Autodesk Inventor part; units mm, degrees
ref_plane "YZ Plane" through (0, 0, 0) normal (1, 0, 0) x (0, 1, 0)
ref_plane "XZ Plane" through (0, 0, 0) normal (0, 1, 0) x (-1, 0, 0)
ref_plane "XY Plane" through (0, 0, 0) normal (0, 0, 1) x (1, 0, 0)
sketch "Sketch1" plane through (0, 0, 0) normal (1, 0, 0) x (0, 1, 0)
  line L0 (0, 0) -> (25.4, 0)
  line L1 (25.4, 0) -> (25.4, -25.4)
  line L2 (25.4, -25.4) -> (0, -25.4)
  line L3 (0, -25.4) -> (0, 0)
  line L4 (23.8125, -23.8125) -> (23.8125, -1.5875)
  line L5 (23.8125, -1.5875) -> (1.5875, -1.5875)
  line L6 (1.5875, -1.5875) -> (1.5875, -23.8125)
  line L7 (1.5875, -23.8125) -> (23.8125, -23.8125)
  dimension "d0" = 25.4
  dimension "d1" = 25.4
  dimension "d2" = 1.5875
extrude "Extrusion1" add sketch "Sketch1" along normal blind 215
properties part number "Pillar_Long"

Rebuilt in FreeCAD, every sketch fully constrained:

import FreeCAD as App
import Part
import Sketcher

V = App.Vector
Q = App.Units.Quantity


def add_polygon(sketch, points):
    """Adds a closed chain of lines whose ends are joined by coincident constraints."""
    first, n = sketch.GeometryCount, len(points)
    for a, b in zip(points, points[1:] + points[:1]):
        sketch.addGeometry(Part.LineSegment(App.Vector(*a, 0), App.Vector(*b, 0)), False)
    for i in range(n):
        sketch.addConstraint(Sketcher.Constraint("Coincident", first + i, 2, first + (i + 1) % n, 1))

doc = App.newDocument("Part")
body = doc.addObject("PartDesign::Body", "Body")

sketch1 = body.newObject("Sketcher::SketchObject", "Sketch")
sketch1.AttachmentSupport = (doc.getObject("YZ_Plane"), [""])
sketch1.MapMode = "FlatFace"
add_polygon(sketch1, [(25, 0), (0, 0), (0, -25), (25, -25)])
add_polygon(sketch1, [(24, -2), (24, -24), (2, -24), (2, -2)])
sketch1.addConstraint([
    Sketcher.Constraint("Horizontal", 0),
    Sketcher.Constraint("Vertical", 1),
    Sketcher.Constraint("Horizontal", 2),
    Sketcher.Constraint("Vertical", 3),
    Sketcher.Constraint("Vertical", 4),
    Sketcher.Constraint("Horizontal", 5),
    Sketcher.Constraint("Vertical", 6),
    Sketcher.Constraint("Horizontal", 7),
    Sketcher.Constraint("Coincident", 0, 2, -1, 1),
    Sketcher.Constraint("Equal", 2, 1),
    Sketcher.Constraint("Equal", 7, 4),
    Sketcher.Constraint("DistanceX", 0, 2, 0, 1, Q("1 in")),
    Sketcher.Constraint("DistanceX", -1, 1, 5, 2, Q("0.0625 in")),
    Sketcher.Constraint("DistanceY", 6, 2, -1, 1, Q("0.0625 in")),
    Sketcher.Constraint("DistanceX", 4, 2, 2, 2, Q("0.0625 in")),
])
pad1 = body.newObject("PartDesign::Pad", "Pad")
pad1.Profile = sketch1
pad1.Length = 215

doc.recompute()
